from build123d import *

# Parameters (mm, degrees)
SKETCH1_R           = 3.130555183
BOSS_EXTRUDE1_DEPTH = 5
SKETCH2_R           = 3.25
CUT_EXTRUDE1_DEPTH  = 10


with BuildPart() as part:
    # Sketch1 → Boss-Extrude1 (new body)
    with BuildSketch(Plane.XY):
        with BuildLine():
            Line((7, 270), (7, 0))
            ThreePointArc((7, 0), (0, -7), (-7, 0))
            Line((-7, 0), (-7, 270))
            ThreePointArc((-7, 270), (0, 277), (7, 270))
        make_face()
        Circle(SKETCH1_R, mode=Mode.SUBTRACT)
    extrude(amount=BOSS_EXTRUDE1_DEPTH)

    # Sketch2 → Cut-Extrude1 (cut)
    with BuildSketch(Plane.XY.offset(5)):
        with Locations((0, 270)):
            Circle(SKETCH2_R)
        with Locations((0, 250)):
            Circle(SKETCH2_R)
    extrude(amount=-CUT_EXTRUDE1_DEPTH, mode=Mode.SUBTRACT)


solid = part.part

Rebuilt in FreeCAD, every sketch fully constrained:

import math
import FreeCAD as App
import Part
import Sketcher
from FreeCAD import Vector

doc = App.newDocument("Part")
body = doc.addObject("PartDesign::Body", "Body")

sketch1 = doc.addObject("Sketcher::SketchObject", "Sketch")
body.addObject(sketch1)
sketch1.AttachmentSupport = (doc.XY_Plane, [""])
sketch1.MapMode = "FlatFace"
sketch1.addGeometry([
    Part.LineSegment(Vector(7, 0, 0), Vector(7, 270, 0)),
    Part.ArcOfCircle(Part.Circle(Vector(0, 270, 0), Vector(0, 0, 1), 7), math.radians(0), math.radians(180)),
    Part.LineSegment(Vector(-7, 270, 0), Vector(-7, 0, 0)),
    Part.ArcOfCircle(Part.Circle(Vector(0, 0, 0), Vector(0, 0, 1), 7), math.radians(180), math.radians(360)),
    Part.Circle(Vector(0, 0, 0), Vector(0, 0, 1), 3.130555),
], False)
sketch1.addConstraint([
    Sketcher.Constraint("Tangent", 0, 2, 1, 1),
    Sketcher.Constraint("Tangent", 1, 2, 2, 1),
    Sketcher.Constraint("Tangent", 2, 2, 3, 1),
    Sketcher.Constraint("Tangent", 3, 2, 0, 1),
    Sketcher.Constraint("Vertical", 0),
    Sketcher.Constraint("Vertical", 2),
    Sketcher.Constraint("Coincident", 3, 3, -1, 1),
    Sketcher.Constraint("Coincident", 4, 3, -1, 1),
    Sketcher.Constraint("Radius", 1, 7.0),
    Sketcher.Constraint("DistanceY", 0, 1, 0, 2, 270.0),
    Sketcher.Constraint("Diameter", 4, 6.26111),
])
pad1 = doc.addObject("PartDesign::Pad", "Pad")
body.addObject(pad1)
pad1.Profile = sketch1
pad1.Length = 5

sketch2 = doc.addObject("Sketcher::SketchObject", "Sketch001")
body.addObject(sketch2)
sketch2.AttachmentSupport = (doc.XY_Plane, [""])
sketch2.MapMode = "FlatFace"
sketch2.AttachmentOffset = App.Placement(Vector(0, 0, 5), App.Rotation())
sketch2.addGeometry([
    Part.Circle(Vector(0, 270, 0), Vector(0, 0, 1), 3.25),
    Part.Circle(Vector(0, 250, 0), Vector(0, 0, 1), 3.25),
], False)
sketch2.addConstraint([
    Sketcher.Constraint("Equal", 0, 1),
    Sketcher.Constraint("PointOnObject", 0, 3, -2),
    Sketcher.Constraint("PointOnObject", 1, 3, -2),
    Sketcher.Constraint("Diameter", 0, 6.5),
    Sketcher.Constraint("DistanceY", -1, 1, 0, 3, 270.0),
    Sketcher.Constraint("DistanceY", -1, 1, 1, 3, 250.0),
])
pocket1 = doc.addObject("PartDesign::Pocket", "Pocket")
body.addObject(pocket1)
pocket1.Profile = sketch2
pocket1.Length = 10

doc.recompute()
